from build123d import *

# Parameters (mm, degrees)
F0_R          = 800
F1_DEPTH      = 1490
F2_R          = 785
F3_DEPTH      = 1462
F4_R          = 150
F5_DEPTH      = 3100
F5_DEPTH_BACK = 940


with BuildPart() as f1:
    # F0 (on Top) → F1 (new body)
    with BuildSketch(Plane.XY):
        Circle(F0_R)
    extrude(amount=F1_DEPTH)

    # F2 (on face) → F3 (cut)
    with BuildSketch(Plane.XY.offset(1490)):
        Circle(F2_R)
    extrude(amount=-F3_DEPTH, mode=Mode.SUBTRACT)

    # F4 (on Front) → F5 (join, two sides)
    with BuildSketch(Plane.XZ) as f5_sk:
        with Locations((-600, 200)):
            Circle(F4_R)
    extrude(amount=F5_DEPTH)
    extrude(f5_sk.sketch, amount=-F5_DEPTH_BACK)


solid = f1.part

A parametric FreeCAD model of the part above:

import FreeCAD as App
import Part
import Sketcher
Q = App.Units.Quantity

doc = App.newDocument("Part")
params = doc.addObject("Spreadsheet::Sheet", "Params")
for row, (alias, value) in enumerate([
    ("sketch1_diameter", "1600 mm"),
    ("pad1_length", "1490 mm"),
    ("sketch2_diameter", "1570 mm"),
    ("pocket1_length", "1462 mm"),
    ("sketch3_diameter", "300 mm"),
    ("pad2_length", "3100 mm"),
    ("pad2_length2", "940 mm"),
], start=1):
    params.set(f"A{row}", alias)
    params.set(f"B{row}", "=" + value)
    params.setAlias(f"B{row}", alias)

body = doc.addObject("PartDesign::Body", "Body")

sketch1 = doc.addObject("Sketcher::SketchObject", "Sketch")
body.addObject(sketch1)
sketch1.AttachmentSupport = (doc.XY_Plane, [""])
sketch1.MapMode = "FlatFace"
sketch1.addGeometry(Part.Circle(App.Vector(0, 0, 0), App.Vector(0, 0, 1), 800), False)
sketch1.addConstraint([
    Sketcher.Constraint("Coincident", 0, 3, -1, 1),
    Sketcher.Constraint("Diameter", 0, Q("1600 mm")),
])
sketch1.setExpression("Constraints[1]", "Params.sketch1_diameter")
pad1 = doc.addObject("PartDesign::Pad", "Pad")
body.addObject(pad1)
pad1.Profile = sketch1
pad1.setExpression("Length", "Params.pad1_length")

sketch2 = doc.addObject("Sketcher::SketchObject", "Sketch001")
body.addObject(sketch2)
sketch2.AttachmentSupport = (doc.XY_Plane, [""])
sketch2.MapMode = "FlatFace"
sketch2.AttachmentOffset = App.Placement(App.Vector(0, 0, 1490), App.Rotation())
sketch2.addGeometry(Part.Circle(App.Vector(0, 0, 0), App.Vector(0, 0, 1), 785), False)
sketch2.addConstraint([
    Sketcher.Constraint("Coincident", 0, 3, -1, 1),
    Sketcher.Constraint("Diameter", 0, Q("1570 mm")),
])
sketch2.setExpression("Constraints[1]", "Params.sketch2_diameter")
pocket1 = doc.addObject("PartDesign::Pocket", "Pocket")
body.addObject(pocket1)
pocket1.Profile = sketch2
pocket1.setExpression("Length", "Params.pocket1_length")

sketch3 = doc.addObject("Sketcher::SketchObject", "Sketch002")
body.addObject(sketch3)
sketch3.AttachmentSupport = (doc.XZ_Plane, [""])
sketch3.MapMode = "FlatFace"
sketch3.addGeometry(Part.Circle(App.Vector(-600, 200, 0), App.Vector(0, 0, 1), 150), False)
sketch3.addConstraint([
    Sketcher.Constraint("Diameter", 0, Q("300 mm")),
    Sketcher.Constraint("DistanceX", 0, 3, -1, 1, Q("600 mm")),
    Sketcher.Constraint("DistanceY", -1, 1, 0, 3, Q("200 mm")),
])
sketch3.setExpression("Constraints[0]", "Params.sketch3_diameter")
pad2 = doc.addObject("PartDesign::Pad", "Pad001")
body.addObject(pad2)
pad2.Profile = sketch3
pad2.Type = "TwoLengths"
pad2.setExpression("Length", "Params.pad2_length")
pad2.setExpression("Length2", "Params.pad2_length2")

doc.recompute()
